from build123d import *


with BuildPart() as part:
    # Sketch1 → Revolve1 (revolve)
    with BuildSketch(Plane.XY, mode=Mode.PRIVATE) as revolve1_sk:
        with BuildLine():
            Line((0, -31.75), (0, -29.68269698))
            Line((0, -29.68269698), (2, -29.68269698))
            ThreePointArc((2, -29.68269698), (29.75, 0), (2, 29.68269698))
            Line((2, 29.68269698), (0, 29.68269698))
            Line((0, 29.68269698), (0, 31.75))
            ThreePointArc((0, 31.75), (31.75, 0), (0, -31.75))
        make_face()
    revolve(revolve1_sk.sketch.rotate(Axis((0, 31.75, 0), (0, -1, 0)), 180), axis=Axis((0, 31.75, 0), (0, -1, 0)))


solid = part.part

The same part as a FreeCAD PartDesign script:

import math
import FreeCAD as App
import Part
import Sketcher

doc = App.newDocument("Part")
body = doc.addObject("PartDesign::Body", "Body")

# Sketch on XY plane
sketch1 = body.newObject("Sketcher::SketchObject", "Sketch")
sketch1.AttachmentSupport = (doc.getObject("XY_Plane"), [""])
sketch1.MapMode = "FlatFace"
sketch1.addGeometry([
    Part.LineSegment(App.Vector(0, -29.7, 0), App.Vector(0, -31.8, 0)),  # 0
    Part.ArcOfCircle(Part.Circle(App.Vector(0, 0, 0), App.Vector(0, 0, 1), 31.8), math.radians(-90), math.radians(90)),  # 1
    Part.LineSegment(App.Vector(0, 31.8, 0), App.Vector(0, 29.7, 0)),  # 2
    Part.LineSegment(App.Vector(0, 29.7, 0), App.Vector(2, 29.7, 0)),  # 3
    Part.ArcOfCircle(Part.Circle(App.Vector(0, 0, 0), App.Vector(0, 0, 1), 29.8), math.radians(-86), math.radians(86)),  # 4
    Part.LineSegment(App.Vector(2, -29.7, 0), App.Vector(0, -29.7, 0)),  # 5
], False)
sketch1.addConstraint([
    Sketcher.Constraint("Coincident", 0, 2, 1, 1),
    Sketcher.Constraint("Coincident", 1, 2, 2, 1),
    Sketcher.Constraint("Coincident", 2, 2, 3, 1),
    Sketcher.Constraint("Coincident", 3, 2, 4, 2),
    Sketcher.Constraint("Coincident", 4, 1, 5, 1),
    Sketcher.Constraint("Coincident", 5, 2, 0, 1),
    Sketcher.Constraint("Vertical", 0),
    Sketcher.Constraint("Vertical", 2),
    Sketcher.Constraint("Horizontal", 3),
    Sketcher.Constraint("Horizontal", 5),
    Sketcher.Constraint("Coincident", 1, 3, -1, 1),
    Sketcher.Constraint("Coincident", 4, 3, -1, 1),
    Sketcher.Constraint("Symmetric", 2, 2, 5, 2, -1, 1),
    Sketcher.Constraint("PointOnObject", 0, 2, -2),
    Sketcher.Constraint("DistanceX", 3, 1, 3, 2, 2.0),
    Sketcher.Constraint("Radius", 1, 31.75),
    Sketcher.Constraint("Radius", 4, 29.75),
])
revolution = body.newObject("PartDesign::Revolution", "Revolution")
revolution.Profile = sketch1
revolution.ReferenceAxis = (sketch1, ["V_Axis"])
revolution.Angle = 360

doc.recompute()
